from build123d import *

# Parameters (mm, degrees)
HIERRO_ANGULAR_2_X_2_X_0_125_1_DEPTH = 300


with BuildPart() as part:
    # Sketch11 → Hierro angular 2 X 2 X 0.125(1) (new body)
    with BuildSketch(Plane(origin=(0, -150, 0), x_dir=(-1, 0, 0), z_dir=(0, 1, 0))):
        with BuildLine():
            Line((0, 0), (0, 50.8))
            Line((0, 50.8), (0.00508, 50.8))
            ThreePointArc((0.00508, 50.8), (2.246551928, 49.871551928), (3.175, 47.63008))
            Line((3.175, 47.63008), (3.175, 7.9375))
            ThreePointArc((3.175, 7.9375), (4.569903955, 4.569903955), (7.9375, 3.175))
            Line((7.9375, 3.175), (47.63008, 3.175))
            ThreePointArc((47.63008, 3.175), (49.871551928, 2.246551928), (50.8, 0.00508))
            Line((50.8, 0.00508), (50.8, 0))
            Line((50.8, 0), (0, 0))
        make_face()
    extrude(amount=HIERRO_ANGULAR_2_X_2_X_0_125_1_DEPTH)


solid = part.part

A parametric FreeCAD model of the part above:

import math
import FreeCAD as App
import Part
import Sketcher
from FreeCAD import Vector
Q = App.Units.Quantity

doc = App.newDocument("Part")
body = doc.addObject("PartDesign::Body", "Body")

sketch1 = body.newObject("Sketcher::SketchObject", "Sketch")
sketch1.AttachmentSupport = (doc.getObject("XZ_Plane"), [""])
sketch1.MapMode = "FlatFace"
sketch1.AttachmentOffset = App.Placement(Vector(0, 0, 150), App.Rotation())
sketch1.addGeometry([
    Part.LineSegment(Vector(0, 50.8, 0), Vector(0, 0, 0)),
    Part.LineSegment(Vector(0, 0, 0), Vector(-50.8, 0, 0)),
    Part.LineSegment(Vector(-50.8, 0, 0), Vector(-50.8, 0.005, 0)),
    Part.ArcOfCircle(Part.Circle(Vector(-47.63, 0.005, 0), Vector(0, 0, 1), 3.17), math.radians(90), math.radians(180)),
    Part.LineSegment(Vector(-47.63, 3.175, 0), Vector(-7.938, 3.175, 0)),
    Part.ArcOfCircle(Part.Circle(Vector(-7.938, 7.938, 0), Vector(0, 0, 1), 4.763), math.radians(-90), math.radians(0)),
    Part.LineSegment(Vector(-3.175, 7.938, 0), Vector(-3.175, 47.63, 0)),
    Part.ArcOfCircle(Part.Circle(Vector(-0.005, 47.63, 0), Vector(0, 0, 1), 3.17), math.radians(90), math.radians(180)),
    Part.LineSegment(Vector(-0.005, 50.8, 0), Vector(0, 50.8, 0)),
], False)
sketch1.addConstraint([
    Sketcher.Constraint("Coincident", 0, 2, 1, 1),
    Sketcher.Constraint("Coincident", 1, 2, 2, 1),
    Sketcher.Constraint("Tangent", 2, 2, 3, 2),
    Sketcher.Constraint("Tangent", 3, 1, 4, 1),
    Sketcher.Constraint("Tangent", 4, 2, 5, 1),
    Sketcher.Constraint("Tangent", 5, 2, 6, 1),
    Sketcher.Constraint("Tangent", 6, 2, 7, 2),
    Sketcher.Constraint("Tangent", 7, 1, 8, 1),
    Sketcher.Constraint("Coincident", 8, 2, 0, 1),
    Sketcher.Constraint("Vertical", 0),
    Sketcher.Constraint("Horizontal", 1),
    Sketcher.Constraint("Horizontal", 4),
    Sketcher.Constraint("Vertical", 6),
    Sketcher.Constraint("Coincident", 0, 2, -1, 1),
    Sketcher.Constraint("Equal", 3, 7),
    Sketcher.Constraint("Horizontal", 3, 3, 2, 2),
    Sketcher.Constraint("Equal", 1, 0),
    Sketcher.Constraint("Equal", 8, 2),
    Sketcher.Constraint("Equal", 4, 6),
    Sketcher.Constraint("DistanceX", 1, 2, 1, 1, Q("2 in")),
    Sketcher.Constraint("Radius", 5, Q("0.1875 in")),
    Sketcher.Constraint("Radius", 3, Q("0.1248 in")),
    Sketcher.Constraint("DistanceX", 4, 1, 4, 2, Q("1.5627 in")),
])
pad1 = body.newObject("PartDesign::Pad", "Pad")
pad1.Profile = sketch1
pad1.Length = 300
pad1.Reversed = True

doc.recompute()
